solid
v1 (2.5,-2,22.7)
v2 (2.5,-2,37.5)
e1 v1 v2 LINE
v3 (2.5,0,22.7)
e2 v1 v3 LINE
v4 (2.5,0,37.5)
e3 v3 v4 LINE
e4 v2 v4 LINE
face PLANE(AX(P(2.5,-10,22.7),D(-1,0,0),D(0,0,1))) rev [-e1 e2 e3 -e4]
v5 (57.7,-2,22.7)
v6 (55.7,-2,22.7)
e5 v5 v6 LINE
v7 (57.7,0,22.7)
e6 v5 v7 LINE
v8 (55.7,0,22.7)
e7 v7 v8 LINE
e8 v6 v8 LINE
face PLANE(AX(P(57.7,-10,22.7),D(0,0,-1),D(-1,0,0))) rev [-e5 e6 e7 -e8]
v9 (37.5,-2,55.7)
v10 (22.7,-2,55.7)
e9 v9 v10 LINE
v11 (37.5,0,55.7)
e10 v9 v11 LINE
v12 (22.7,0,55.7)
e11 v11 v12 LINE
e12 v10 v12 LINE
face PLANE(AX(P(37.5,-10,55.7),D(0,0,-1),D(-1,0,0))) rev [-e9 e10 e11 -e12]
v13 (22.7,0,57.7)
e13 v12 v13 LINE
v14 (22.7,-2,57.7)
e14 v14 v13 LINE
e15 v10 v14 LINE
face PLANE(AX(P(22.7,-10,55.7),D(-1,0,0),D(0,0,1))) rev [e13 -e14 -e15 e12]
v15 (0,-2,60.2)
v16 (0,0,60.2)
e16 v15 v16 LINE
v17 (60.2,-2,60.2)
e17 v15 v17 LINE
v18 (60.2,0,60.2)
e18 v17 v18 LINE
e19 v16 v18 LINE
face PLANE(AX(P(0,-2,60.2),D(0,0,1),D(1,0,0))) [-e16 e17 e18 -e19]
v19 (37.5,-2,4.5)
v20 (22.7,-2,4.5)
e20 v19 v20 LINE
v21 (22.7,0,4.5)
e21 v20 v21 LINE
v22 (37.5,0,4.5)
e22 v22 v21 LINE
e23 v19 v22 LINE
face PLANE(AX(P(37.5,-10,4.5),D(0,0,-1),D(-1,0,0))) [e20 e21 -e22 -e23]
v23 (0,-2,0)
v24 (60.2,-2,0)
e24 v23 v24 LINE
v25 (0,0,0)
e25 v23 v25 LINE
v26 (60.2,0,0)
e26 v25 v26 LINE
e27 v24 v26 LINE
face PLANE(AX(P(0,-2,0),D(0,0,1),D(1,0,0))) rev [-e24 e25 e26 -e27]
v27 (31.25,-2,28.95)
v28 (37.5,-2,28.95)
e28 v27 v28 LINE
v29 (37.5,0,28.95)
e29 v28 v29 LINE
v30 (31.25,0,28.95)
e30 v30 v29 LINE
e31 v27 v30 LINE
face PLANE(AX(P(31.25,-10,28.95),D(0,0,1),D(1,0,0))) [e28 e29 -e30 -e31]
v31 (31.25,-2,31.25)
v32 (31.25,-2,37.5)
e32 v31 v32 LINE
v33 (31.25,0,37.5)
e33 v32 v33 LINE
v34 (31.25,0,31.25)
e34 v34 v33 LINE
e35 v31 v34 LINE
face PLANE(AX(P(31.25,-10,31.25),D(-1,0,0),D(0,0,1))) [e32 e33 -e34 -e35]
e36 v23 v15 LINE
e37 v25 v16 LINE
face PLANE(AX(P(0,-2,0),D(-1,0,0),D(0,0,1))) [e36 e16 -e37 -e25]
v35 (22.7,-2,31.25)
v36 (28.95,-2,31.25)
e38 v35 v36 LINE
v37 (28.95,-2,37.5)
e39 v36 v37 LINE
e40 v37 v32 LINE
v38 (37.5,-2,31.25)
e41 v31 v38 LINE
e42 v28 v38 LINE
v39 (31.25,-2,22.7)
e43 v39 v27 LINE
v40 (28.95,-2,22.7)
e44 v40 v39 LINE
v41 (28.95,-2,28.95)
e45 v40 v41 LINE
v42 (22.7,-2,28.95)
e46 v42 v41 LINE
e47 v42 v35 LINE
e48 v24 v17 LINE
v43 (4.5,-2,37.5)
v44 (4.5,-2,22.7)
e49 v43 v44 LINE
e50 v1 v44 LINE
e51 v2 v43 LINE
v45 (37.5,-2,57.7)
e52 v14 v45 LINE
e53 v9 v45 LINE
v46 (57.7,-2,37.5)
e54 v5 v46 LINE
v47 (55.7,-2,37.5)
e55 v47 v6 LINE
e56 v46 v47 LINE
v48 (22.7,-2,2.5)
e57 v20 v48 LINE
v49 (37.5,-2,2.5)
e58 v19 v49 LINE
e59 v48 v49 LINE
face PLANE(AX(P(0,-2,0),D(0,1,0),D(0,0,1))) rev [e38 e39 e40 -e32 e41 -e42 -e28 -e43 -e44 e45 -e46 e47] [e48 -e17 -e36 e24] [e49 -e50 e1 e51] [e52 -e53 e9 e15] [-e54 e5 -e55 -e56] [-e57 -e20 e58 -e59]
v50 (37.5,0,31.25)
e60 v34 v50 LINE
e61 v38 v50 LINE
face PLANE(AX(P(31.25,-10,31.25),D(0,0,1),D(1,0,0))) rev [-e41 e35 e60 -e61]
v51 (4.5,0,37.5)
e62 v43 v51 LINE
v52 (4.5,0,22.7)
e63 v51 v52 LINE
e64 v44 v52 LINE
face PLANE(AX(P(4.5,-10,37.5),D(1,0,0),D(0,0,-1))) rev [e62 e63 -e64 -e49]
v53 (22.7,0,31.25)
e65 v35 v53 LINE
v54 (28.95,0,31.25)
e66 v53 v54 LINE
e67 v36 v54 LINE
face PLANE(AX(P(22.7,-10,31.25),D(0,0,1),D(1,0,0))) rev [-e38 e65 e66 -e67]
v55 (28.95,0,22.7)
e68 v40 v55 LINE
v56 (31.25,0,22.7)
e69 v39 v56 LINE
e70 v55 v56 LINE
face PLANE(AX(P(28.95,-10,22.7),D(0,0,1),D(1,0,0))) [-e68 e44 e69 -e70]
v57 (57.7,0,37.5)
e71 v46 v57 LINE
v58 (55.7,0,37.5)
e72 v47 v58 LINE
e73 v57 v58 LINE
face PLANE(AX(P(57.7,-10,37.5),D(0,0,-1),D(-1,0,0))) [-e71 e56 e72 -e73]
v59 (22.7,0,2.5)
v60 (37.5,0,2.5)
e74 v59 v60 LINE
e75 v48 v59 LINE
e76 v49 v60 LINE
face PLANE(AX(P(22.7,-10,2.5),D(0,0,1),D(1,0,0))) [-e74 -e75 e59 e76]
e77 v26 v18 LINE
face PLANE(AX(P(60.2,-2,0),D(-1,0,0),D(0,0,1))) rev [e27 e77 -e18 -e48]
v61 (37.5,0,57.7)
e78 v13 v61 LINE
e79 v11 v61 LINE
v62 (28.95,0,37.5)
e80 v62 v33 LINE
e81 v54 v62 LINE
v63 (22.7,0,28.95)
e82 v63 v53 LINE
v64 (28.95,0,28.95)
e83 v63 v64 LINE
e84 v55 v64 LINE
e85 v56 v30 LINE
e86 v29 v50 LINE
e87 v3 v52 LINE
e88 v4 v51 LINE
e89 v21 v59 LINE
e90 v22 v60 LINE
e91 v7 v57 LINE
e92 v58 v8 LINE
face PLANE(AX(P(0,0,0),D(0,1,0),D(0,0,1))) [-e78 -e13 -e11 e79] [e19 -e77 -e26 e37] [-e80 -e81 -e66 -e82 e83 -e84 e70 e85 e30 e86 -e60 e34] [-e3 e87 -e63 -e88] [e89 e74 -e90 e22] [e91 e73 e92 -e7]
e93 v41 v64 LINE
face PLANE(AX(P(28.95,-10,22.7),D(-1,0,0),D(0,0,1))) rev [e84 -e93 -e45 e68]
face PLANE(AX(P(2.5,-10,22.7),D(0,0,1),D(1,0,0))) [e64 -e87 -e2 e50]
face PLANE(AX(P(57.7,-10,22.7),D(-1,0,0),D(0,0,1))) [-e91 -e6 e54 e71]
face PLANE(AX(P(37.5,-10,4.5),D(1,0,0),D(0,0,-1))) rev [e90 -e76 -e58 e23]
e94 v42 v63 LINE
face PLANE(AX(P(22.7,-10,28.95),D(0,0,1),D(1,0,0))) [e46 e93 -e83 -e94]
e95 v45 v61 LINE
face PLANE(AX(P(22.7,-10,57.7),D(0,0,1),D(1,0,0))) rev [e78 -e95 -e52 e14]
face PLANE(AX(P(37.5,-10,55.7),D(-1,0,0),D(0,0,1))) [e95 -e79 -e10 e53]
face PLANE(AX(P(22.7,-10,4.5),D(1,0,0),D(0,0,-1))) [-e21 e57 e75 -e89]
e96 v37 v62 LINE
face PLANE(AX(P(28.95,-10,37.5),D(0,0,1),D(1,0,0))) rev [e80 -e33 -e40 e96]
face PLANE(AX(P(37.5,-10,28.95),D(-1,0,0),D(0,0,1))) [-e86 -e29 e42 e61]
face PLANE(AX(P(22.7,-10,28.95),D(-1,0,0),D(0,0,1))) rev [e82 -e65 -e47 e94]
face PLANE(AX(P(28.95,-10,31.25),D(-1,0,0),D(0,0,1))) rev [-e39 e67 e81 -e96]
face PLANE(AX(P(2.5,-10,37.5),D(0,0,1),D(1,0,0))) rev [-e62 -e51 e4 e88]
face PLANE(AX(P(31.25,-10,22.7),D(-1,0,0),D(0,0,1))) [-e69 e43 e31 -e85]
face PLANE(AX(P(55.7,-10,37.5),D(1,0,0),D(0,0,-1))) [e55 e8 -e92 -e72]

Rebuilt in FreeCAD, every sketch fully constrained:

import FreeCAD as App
import Part
import Sketcher

doc = App.newDocument("Part")
body = doc.addObject("PartDesign::Body", "Body")

# Sketch on XZ plane
sketch1 = body.newObject("Sketcher::SketchObject", "Sketch")
sketch1.AttachmentSupport = (doc.getObject("XZ_Plane"), [""])
sketch1.MapMode = "FlatFace"
sketch1.addGeometry([
    Part.LineSegment(App.Vector(0, 0, 0), App.Vector(0, 60, 0)),
    Part.LineSegment(App.Vector(0, 60, 0), App.Vector(60, 60, 0)),
    Part.LineSegment(App.Vector(60, 60, 0), App.Vector(60, 0, 0)),
    Part.LineSegment(App.Vector(60, 0, 0), App.Vector(0, 0, 0)),
], False)
sketch1.addConstraint([
    Sketcher.Constraint("Coincident", 0, 2, 1, 1),
    Sketcher.Constraint("Coincident", 1, 2, 2, 1),
    Sketcher.Constraint("Coincident", 2, 2, 3, 1),
    Sketcher.Constraint("Coincident", 3, 2, 0, 1),
    Sketcher.Constraint("Vertical", 0),
    Sketcher.Constraint("Horizontal", 1),
    Sketcher.Constraint("Vertical", 2),
    Sketcher.Constraint("Horizontal", 3),
    Sketcher.Constraint("Coincident", 3, 2, -1, 1),
    Sketcher.Constraint("Equal", 3, 0),
    Sketcher.Constraint("DistanceX", 1, 1, 1, 2, 60.2),
])
pad1 = body.newObject("PartDesign::Pad", "Pad")
pad1.Profile = sketch1
pad1.Length = 2

# Sketch on XZ plane
sketch2 = body.newObject("Sketcher::SketchObject", "Sketch001")
sketch2.AttachmentSupport = (doc.getObject("XZ_Plane"), [""])
sketch2.MapMode = "FlatFace"
sketch2.addGeometry([
    Part.LineSegment(App.Vector(22.7, 55.7, 0), App.Vector(22.7, 57.7, 0)),  # 0
    Part.LineSegment(App.Vector(22.7, 57.7, 0), App.Vector(37.5, 57.7, 0)),  # 1
    Part.LineSegment(App.Vector(37.5, 57.7, 0), App.Vector(37.5, 55.7, 0)),  # 2
    Part.LineSegment(App.Vector(37.5, 55.7, 0), App.Vector(22.7, 55.7, 0)),  # 3
    Part.LineSegment(App.Vector(22.7, 2.5, 0), App.Vector(22.7, 4.5, 0)),  # 4
    Part.LineSegment(App.Vector(22.7, 4.5, 0), App.Vector(37.5, 4.5, 0)),  # 5
    Part.LineSegment(App.Vector(37.5, 4.5, 0), App.Vector(37.5, 2.5, 0)),  # 6
    Part.LineSegment(App.Vector(37.5, 2.5, 0), App.Vector(22.7, 2.5, 0)),  # 7
    Part.LineSegment(App.Vector(2.5, 22.7, 0), App.Vector(2.5, 37.5, 0)),  # 8
    Part.LineSegment(App.Vector(2.5, 37.5, 0), App.Vector(4.5, 37.5, 0)),  # 9
    Part.LineSegment(App.Vector(4.5, 37.5, 0), App.Vector(4.5, 22.7, 0)),  # 10
    Part.LineSegment(App.Vector(4.5, 22.7, 0), App.Vector(2.5, 22.7, 0)),  # 11
    Part.LineSegment(App.Vector(55.7, 22.7, 0), App.Vector(55.7, 37.5, 0)),  # 12
    Part.LineSegment(App.Vector(55.7, 37.5, 0), App.Vector(57.7, 37.5, 0)),  # 13
    Part.LineSegment(App.Vector(57.7, 37.5, 0), App.Vector(57.7, 22.7, 0)),  # 14
    Part.LineSegment(App.Vector(57.7, 22.7, 0), App.Vector(55.7, 22.7, 0)),  # 15
    Part.LineSegment(App.Vector(28.9, 22.7, 0), App.Vector(28.9, 28.9, 0)),  # 16
    Part.LineSegment(App.Vector(28.9, 28.9, 0), App.Vector(22.7, 28.9, 0)),  # 17
    Part.LineSegment(App.Vector(22.7, 28.9, 0), App.Vector(22.7, 31.2, 0)),  # 18
    Part.LineSegment(App.Vector(22.7, 31.2, 0), App.Vector(28.9, 31.2, 0)),  # 19
    Part.LineSegment(App.Vector(28.9, 31.2, 0), App.Vector(28.9, 37.5, 0)),  # 20
    Part.LineSegment(App.Vector(28.9, 37.5, 0), App.Vector(31.2, 37.5, 0)),  # 21
    Part.LineSegment(App.Vector(31.2, 37.5, 0), App.Vector(31.2, 31.2, 0)),  # 22
    Part.LineSegment(App.Vector(31.2, 31.2, 0), App.Vector(37.5, 31.2, 0)),  # 23
    Part.LineSegment(App.Vector(37.5, 31.2, 0), App.Vector(37.5, 28.9, 0)),  # 24
    Part.LineSegment(App.Vector(37.5, 28.9, 0), App.Vector(31.2, 28.9, 0)),  # 25
    Part.LineSegment(App.Vector(31.2, 28.9, 0), App.Vector(31.2, 22.7, 0)),  # 26
    Part.LineSegment(App.Vector(31.2, 22.7, 0), App.Vector(28.9, 22.7, 0)),  # 27
], False)
sketch2.addConstraint([
    Sketcher.Constraint("Coincident", 0, 2, 1, 1),
    Sketcher.Constraint("Coincident", 1, 2, 2, 1),
    Sketcher.Constraint("Coincident", 2, 2, 3, 1),
    Sketcher.Constraint("Coincident", 3, 2, 0, 1),
    Sketcher.Constraint("Coincident", 4, 2, 5, 1),
    Sketcher.Constraint("Coincident", 5, 2, 6, 1),
    Sketcher.Constraint("Coincident", 6, 2, 7, 1),
    Sketcher.Constraint("Coincident", 7, 2, 4, 1),
    Sketcher.Constraint("Coincident", 8, 2, 9, 1),
    Sketcher.Constraint("Coincident", 9, 2, 10, 1),
    Sketcher.Constraint("Coincident", 10, 2, 11, 1),
    Sketcher.Constraint("Coincident", 11, 2, 8, 1),
    Sketcher.Constraint("Coincident", 12, 2, 13, 1),
    Sketcher.Constraint("Coincident", 13, 2, 14, 1),
    Sketcher.Constraint("Coincident", 14, 2, 15, 1),
    Sketcher.Constraint("Coincident", 15, 2, 12, 1),
    Sketcher.Constraint("Coincident", 16, 2, 17, 1),
    Sketcher.Constraint("Coincident", 17, 2, 18, 1),
    Sketcher.Constraint("Coincident", 18, 2, 19, 1),
    Sketcher.Constraint("Coincident", 19, 2, 20, 1),
    Sketcher.Constraint("Coincident", 20, 2, 21, 1),
    Sketcher.Constraint("Coincident", 21, 2, 22, 1),
    Sketcher.Constraint("Coincident", 22, 2, 23, 1),
    Sketcher.Constraint("Coincident", 23, 2, 24, 1),
    Sketcher.Constraint("Coincident", 24, 2, 25, 1),
    Sketcher.Constraint("Coincident", 25, 2, 26, 1),
    Sketcher.Constraint("Coincident", 26, 2, 27, 1),
    Sketcher.Constraint("Coincident", 27, 2, 16, 1),
    Sketcher.Constraint("Vertical", 0),
    Sketcher.Constraint("Horizontal", 1),
    Sketcher.Constraint("Vertical", 2),
    Sketcher.Constraint("Horizontal", 3),
    Sketcher.Constraint("Vertical", 4),
    Sketcher.Constraint("Horizontal", 5),
    Sketcher.Constraint("Vertical", 6),
    Sketcher.Constraint("Horizontal", 7),
    Sketcher.Constraint("Vertical", 8),
    Sketcher.Constraint("Horizontal", 9),
    Sketcher.Constraint("Vertical", 10),
    Sketcher.Constraint("Horizontal", 11),
    Sketcher.Constraint("Vertical", 12),
    Sketcher.Constraint("Horizontal", 13),
    Sketcher.Constraint("Vertical", 14),
    Sketcher.Constraint("Horizontal", 15),
    Sketcher.Constraint("Vertical", 16),
    Sketcher.Constraint("Horizontal", 17),
    Sketcher.Constraint("Vertical", 18),
    Sketcher.Constraint("Horizontal", 19),
    Sketcher.Constraint("Vertical", 20),
    Sketcher.Constraint("Horizontal", 21),
    Sketcher.Constraint("Vertical", 22),
    Sketcher.Constraint("Horizontal", 23),
    Sketcher.Constraint("Vertical", 24),
    Sketcher.Constraint("Horizontal", 25),
    Sketcher.Constraint("Vertical", 26),
    Sketcher.Constraint("Horizontal", 27),
    Sketcher.Constraint("Horizontal", 9, 2, 12, 2),
    Sketcher.Constraint("Horizontal", 11, 2, 14, 2),
    Sketcher.Constraint("Horizontal", 13, 2, 20, 2),
    Sketcher.Constraint("Horizontal", 19, 2, 22, 2),
    Sketcher.Constraint("Horizontal", 17, 2, 24, 2),
    Sketcher.Constraint("Horizontal", 15, 2, 26, 2),
    Sketcher.Constraint("Vertical", 3, 2, 4, 2),
    Sketcher.Constraint("Vertical", 2, 2, 5, 2),
    Sketcher.Constraint("Vertical", 7, 2, 17, 2),
    Sketcher.Constraint("Vertical", 16, 2, 19, 2),
    Sketcher.Constraint("Vertical", 6, 2, 23, 2),
    Sketcher.Constraint("Vertical", 22, 2, 25, 2),
    Sketcher.Constraint("Equal", 11, 13),
    Sketcher.Constraint("Equal", 19, 23),
    Sketcher.Constraint("Equal", 15, 0),
    Sketcher.Constraint("Equal", 2, 4),
    Sketcher.Constraint("Equal", 7, 8),
    Sketcher.Constraint("Equal", 25, 16),
    Sketcher.Constraint("Equal", 27, 18),
    Sketcher.Constraint("DistanceX", 9, 1, 9, 2, 2.0),
    Sketcher.Constraint("DistanceX", 1, 1, 1, 2, 14.8),
    Sketcher.Constraint("DistanceX", 21, 1, 21, 2, 2.3),
    Sketcher.Constraint("DistanceY", 4, 2, 8, 2, 33.0),
    Sketcher.Constraint("DistanceX", 8, 2, 2, 2, 35.0),
    Sketcher.Constraint("DistanceY", 10, 2, 3, 2, 33.0),
    Sketcher.Constraint("DistanceX", 3, 2, 12, 2, 33.0),
    Sketcher.Constraint("DistanceX", -1, 1, 0, 2, 22.7),
    Sketcher.Constraint("DistanceY", -1, 1, 0, 2, 57.7),
])
pocket1 = body.newObject("PartDesign::Pocket", "Pocket")
pocket1.Profile = sketch2
pocket1.Length = 10
pocket1.Reversed = True

doc.recompute()
